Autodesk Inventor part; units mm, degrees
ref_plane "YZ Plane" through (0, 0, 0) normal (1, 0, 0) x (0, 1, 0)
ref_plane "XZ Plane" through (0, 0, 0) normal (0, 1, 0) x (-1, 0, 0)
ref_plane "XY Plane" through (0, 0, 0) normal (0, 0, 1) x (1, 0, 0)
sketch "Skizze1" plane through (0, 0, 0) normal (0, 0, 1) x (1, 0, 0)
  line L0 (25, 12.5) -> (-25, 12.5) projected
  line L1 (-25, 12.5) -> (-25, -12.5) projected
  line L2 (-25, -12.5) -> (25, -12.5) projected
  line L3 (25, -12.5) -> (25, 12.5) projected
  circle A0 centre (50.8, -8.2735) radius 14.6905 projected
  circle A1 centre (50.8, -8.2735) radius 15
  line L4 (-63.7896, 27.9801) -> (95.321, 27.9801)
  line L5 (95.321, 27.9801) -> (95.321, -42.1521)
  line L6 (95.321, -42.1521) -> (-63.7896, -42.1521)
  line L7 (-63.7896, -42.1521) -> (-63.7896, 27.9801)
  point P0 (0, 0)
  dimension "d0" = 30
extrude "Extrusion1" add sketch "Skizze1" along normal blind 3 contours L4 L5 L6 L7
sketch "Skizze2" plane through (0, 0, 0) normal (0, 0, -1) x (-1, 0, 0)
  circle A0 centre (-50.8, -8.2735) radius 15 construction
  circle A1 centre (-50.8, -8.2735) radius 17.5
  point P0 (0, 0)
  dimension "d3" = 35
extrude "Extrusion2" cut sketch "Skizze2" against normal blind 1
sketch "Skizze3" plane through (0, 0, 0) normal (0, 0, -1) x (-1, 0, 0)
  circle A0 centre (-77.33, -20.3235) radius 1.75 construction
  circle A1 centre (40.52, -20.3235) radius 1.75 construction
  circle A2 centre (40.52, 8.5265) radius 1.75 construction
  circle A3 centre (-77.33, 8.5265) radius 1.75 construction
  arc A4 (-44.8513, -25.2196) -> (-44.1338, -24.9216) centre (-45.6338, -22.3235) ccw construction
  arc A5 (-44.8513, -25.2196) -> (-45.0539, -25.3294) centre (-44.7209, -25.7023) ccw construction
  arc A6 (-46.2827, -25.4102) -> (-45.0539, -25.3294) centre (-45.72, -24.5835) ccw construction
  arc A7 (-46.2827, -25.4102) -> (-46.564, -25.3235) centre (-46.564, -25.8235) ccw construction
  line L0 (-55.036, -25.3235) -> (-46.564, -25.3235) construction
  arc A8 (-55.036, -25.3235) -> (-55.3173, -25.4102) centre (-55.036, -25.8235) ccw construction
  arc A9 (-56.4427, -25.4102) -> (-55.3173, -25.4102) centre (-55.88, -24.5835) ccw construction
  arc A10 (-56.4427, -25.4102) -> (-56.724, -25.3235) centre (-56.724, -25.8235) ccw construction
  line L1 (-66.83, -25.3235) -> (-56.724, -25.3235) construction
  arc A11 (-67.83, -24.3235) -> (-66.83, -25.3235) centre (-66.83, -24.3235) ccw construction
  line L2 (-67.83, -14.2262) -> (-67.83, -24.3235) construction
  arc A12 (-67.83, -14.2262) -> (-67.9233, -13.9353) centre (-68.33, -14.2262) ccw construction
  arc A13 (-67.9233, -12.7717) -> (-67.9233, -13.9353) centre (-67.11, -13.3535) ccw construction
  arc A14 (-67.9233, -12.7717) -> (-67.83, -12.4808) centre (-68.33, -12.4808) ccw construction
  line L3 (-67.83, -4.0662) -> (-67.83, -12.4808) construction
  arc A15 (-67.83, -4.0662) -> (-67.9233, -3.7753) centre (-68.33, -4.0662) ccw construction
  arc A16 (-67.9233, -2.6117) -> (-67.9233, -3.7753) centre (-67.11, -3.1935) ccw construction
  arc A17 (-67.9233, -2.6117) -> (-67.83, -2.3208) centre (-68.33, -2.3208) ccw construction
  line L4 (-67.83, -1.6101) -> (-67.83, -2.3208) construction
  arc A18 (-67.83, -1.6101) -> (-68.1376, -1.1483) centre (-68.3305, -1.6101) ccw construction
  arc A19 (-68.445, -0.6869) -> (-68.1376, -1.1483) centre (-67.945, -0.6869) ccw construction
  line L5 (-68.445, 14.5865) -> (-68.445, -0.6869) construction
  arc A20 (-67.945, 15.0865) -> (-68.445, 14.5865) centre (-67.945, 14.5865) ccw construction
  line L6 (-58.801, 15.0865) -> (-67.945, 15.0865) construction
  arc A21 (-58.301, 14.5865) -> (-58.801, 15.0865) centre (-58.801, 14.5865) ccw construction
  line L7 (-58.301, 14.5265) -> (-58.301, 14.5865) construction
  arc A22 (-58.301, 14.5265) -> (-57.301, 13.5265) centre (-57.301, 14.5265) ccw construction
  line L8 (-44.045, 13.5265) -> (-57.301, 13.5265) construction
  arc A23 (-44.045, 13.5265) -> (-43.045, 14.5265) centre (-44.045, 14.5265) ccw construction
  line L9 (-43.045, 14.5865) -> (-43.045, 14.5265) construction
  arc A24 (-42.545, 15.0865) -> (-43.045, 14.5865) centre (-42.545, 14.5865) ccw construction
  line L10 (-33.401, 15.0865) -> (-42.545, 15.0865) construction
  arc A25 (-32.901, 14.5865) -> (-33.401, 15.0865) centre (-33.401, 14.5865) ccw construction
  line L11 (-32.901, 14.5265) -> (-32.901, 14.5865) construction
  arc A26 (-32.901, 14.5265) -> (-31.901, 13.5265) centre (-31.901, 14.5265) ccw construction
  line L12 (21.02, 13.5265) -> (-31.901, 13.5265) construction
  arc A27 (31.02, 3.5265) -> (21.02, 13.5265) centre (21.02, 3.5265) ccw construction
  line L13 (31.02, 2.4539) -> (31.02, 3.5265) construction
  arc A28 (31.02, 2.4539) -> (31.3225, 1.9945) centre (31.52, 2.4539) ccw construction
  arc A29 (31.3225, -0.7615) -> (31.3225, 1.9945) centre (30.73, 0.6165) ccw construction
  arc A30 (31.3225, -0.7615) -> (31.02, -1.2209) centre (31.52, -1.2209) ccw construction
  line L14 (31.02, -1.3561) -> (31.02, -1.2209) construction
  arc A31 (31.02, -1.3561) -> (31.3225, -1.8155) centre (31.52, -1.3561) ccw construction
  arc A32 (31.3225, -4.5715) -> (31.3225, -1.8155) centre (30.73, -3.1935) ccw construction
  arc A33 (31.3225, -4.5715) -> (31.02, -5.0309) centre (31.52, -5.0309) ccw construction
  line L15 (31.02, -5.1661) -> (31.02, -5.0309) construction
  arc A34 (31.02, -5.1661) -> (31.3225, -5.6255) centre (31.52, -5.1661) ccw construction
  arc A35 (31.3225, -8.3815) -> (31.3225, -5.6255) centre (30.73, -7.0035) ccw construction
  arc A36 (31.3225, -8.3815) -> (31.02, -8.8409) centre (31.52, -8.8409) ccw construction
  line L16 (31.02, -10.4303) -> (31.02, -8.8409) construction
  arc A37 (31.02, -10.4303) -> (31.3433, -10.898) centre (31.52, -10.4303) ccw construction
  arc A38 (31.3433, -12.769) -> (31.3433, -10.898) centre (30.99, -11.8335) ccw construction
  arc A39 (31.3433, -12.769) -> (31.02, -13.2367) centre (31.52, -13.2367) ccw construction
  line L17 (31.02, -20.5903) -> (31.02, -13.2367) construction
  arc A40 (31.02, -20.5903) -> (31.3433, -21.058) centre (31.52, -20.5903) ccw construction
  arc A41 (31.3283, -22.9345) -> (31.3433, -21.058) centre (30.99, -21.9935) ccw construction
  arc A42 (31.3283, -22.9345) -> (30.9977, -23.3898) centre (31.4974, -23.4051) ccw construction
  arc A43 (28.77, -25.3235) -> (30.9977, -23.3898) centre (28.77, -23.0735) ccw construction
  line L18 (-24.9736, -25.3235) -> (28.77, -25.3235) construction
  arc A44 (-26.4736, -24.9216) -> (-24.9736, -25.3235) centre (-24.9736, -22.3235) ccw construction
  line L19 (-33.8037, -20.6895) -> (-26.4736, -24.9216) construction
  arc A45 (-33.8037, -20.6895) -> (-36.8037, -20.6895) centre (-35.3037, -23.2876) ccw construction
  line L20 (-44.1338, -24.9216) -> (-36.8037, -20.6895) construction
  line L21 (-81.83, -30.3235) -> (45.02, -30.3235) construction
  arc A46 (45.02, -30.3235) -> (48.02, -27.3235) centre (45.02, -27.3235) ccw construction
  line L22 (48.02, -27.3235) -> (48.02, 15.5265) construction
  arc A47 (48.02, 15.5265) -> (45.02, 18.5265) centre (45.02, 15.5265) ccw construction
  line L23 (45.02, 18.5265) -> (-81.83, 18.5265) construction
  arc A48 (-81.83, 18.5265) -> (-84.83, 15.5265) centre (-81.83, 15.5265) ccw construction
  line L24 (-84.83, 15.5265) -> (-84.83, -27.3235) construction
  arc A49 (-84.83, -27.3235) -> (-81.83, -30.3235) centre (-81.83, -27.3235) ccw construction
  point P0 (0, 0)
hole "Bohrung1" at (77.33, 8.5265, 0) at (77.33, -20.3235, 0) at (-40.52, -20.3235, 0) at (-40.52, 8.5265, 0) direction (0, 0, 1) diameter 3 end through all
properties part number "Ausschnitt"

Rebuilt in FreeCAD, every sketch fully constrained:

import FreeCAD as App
import Part
import Sketcher


def add_polygon(sketch, points):
    """Adds a closed chain of lines whose ends are joined by coincident constraints."""
    first, n = sketch.GeometryCount, len(points)
    for a, b in zip(points, points[1:] + points[:1]):
        sketch.addGeometry(Part.LineSegment(App.Vector(*a, 0), App.Vector(*b, 0)), False)
    for i in range(n):
        sketch.addConstraint(Sketcher.Constraint("Coincident", first + i, 2, first + (i + 1) % n, 1))

doc = App.newDocument("Part")
params = doc.addObject("Spreadsheet::Sheet", "Params")
for row, (alias, value) in enumerate([
    ("sketch1_diameter", "30 mm"),
    ("sketch1_width", "50 mm"),
    ("sketch1_height", "25 mm"),
    ("pad1_length", "3 mm"),
    ("sketch2_diameter", "35 mm"),
    ("pocket1_length", "1 mm"),
    ("sketch3_diameter", "3 mm"),
    ("hole_diameter", "3 mm"),
], start=1):
    params.set(f"A{row}", alias)
    params.set(f"B{row}", "=" + value)
    params.setAlias(f"B{row}", alias)

body = doc.addObject("PartDesign::Body", "Body")

sketch1 = body.newObject("Sketcher::SketchObject", "Sketch")
sketch1.AttachmentSupport = (doc.getObject("XY_Plane"), [""])
sketch1.MapMode = "FlatFace"
add_polygon(sketch1, [(95.321, 27.9801), (-63.7896, 27.9801), (-63.7896, -42.1521), (95.321, -42.1521)])
sketch1.addGeometry(Part.Circle(App.Vector(50.8, -8.2735, 0), App.Vector(0, 0, 1), 15), False)
add_polygon(sketch1, [(-25, 12.5), (25, 12.5), (25, -12.5), (-25, -12.5)])
sketch1.addConstraint([
    Sketcher.Constraint("Horizontal", 0),
    Sketcher.Constraint("Vertical", 1),
    Sketcher.Constraint("Horizontal", 2),
    Sketcher.Constraint("Vertical", 3),
    Sketcher.Constraint("Horizontal", 5),
    Sketcher.Constraint("Vertical", 6),
    Sketcher.Constraint("Horizontal", 7),
    Sketcher.Constraint("Vertical", 8),
    Sketcher.Constraint("Symmetric", 5, 2, 7, 2, -1, 1),
    Sketcher.Constraint("Diameter", 4, 30.0),
    Sketcher.Constraint("DistanceX", 5, 1, 5, 2, 50.0),
    Sketcher.Constraint("DistanceY", 6, 2, 6, 1, 25.0),
    Sketcher.Constraint("DistanceX", -1, 1, 4, 3, 50.8),
    Sketcher.Constraint("DistanceY", -1, 1, 0, 2, 27.98),
    Sketcher.Constraint("DistanceX", 0, 2, 0, 1, 159.1106),
    Sketcher.Constraint("DistanceY", 1, 2, 1, 1, 70.1322),
    Sketcher.Constraint("DistanceX", -1, 1, 2, 2, 95.321),
    Sketcher.Constraint("DistanceY", 4, 3, -1, 1, 8.2735),
])
sketch1.setExpression("Constraints[17]", "Params.sketch1_diameter")
sketch1.setExpression("Constraints[18]", "Params.sketch1_width")
sketch1.setExpression("Constraints[19]", "Params.sketch1_height")
pad1 = body.newObject("PartDesign::Pad", "Pad")
pad1.Profile = sketch1
pad1.setExpression("Length", "Params.pad1_length")

sketch2 = body.newObject("Sketcher::SketchObject", "Sketch001")
sketch2.AttachmentSupport = (doc.getObject("XY_Plane"), [""])
sketch2.MapMode = "FlatFace"
sketch2.addGeometry(Part.Circle(App.Vector(50.8, -8.2735, 0), App.Vector(0, 0, 1), 17.5), False)
sketch2.addConstraint([
    Sketcher.Constraint("Diameter", 0, 35.0),
    Sketcher.Constraint("DistanceX", -1, 1, 0, 3, 50.8),
    Sketcher.Constraint("DistanceY", 0, 3, -1, 1, 8.2735),
])
sketch2.setExpression("Constraints[0]", "Params.sketch2_diameter")
pocket1 = body.newObject("PartDesign::Pocket", "Pocket")
pocket1.Profile = sketch2
pocket1.setExpression("Length", "Params.pocket1_length")
pocket1.Reversed = True

sketch3 = body.newObject("Sketcher::SketchObject", "Sketch002")
sketch3.AttachmentSupport = (doc.getObject("XY_Plane"), [""])
sketch3.MapMode = "FlatFace"
sketch3.addGeometry([
    Part.Circle(App.Vector(77.33, 8.5265, 0), App.Vector(0, 0, 1), 1.5),
    Part.Circle(App.Vector(77.33, -20.3235, 0), App.Vector(0, 0, 1), 1.5),
    Part.Circle(App.Vector(-40.52, -20.3235, 0), App.Vector(0, 0, 1), 1.5),
    Part.Circle(App.Vector(-40.52, 8.5265, 0), App.Vector(0, 0, 1), 1.5),
], False)
sketch3.addConstraint([
    Sketcher.Constraint("Equal", 0, 1),
    Sketcher.Constraint("Equal", 1, 2),
    Sketcher.Constraint("Equal", 2, 3),
    Sketcher.Constraint("Horizontal", 1, 3, 2, 3),
    Sketcher.Constraint("Horizontal", 0, 3, 3, 3),
    Sketcher.Constraint("Vertical", 0, 3, 1, 3),
    Sketcher.Constraint("Vertical", 2, 3, 3, 3),
    Sketcher.Constraint("Diameter", 0, 3.0),
    Sketcher.Constraint("DistanceX", -1, 1, 0, 3, 77.33),
    Sketcher.Constraint("DistanceX", 2, 3, -1, 1, 40.52),
    Sketcher.Constraint("DistanceY", 1, 3, 0, 3, 28.85),
    Sketcher.Constraint("DistanceY", -1, 1, 0, 3, 8.5265),
])
sketch3.setExpression("Constraints[7]", "Params.sketch3_diameter")
doc.recompute()
hole = body.newObject("PartDesign::Hole", "Hole")
hole.Profile = sketch3
hole.ThreadType = "None"
hole.setExpression("Diameter", "Params.hole_diameter")
hole.DepthType = "ThroughAll"
hole.Reversed = True

doc.recompute()
